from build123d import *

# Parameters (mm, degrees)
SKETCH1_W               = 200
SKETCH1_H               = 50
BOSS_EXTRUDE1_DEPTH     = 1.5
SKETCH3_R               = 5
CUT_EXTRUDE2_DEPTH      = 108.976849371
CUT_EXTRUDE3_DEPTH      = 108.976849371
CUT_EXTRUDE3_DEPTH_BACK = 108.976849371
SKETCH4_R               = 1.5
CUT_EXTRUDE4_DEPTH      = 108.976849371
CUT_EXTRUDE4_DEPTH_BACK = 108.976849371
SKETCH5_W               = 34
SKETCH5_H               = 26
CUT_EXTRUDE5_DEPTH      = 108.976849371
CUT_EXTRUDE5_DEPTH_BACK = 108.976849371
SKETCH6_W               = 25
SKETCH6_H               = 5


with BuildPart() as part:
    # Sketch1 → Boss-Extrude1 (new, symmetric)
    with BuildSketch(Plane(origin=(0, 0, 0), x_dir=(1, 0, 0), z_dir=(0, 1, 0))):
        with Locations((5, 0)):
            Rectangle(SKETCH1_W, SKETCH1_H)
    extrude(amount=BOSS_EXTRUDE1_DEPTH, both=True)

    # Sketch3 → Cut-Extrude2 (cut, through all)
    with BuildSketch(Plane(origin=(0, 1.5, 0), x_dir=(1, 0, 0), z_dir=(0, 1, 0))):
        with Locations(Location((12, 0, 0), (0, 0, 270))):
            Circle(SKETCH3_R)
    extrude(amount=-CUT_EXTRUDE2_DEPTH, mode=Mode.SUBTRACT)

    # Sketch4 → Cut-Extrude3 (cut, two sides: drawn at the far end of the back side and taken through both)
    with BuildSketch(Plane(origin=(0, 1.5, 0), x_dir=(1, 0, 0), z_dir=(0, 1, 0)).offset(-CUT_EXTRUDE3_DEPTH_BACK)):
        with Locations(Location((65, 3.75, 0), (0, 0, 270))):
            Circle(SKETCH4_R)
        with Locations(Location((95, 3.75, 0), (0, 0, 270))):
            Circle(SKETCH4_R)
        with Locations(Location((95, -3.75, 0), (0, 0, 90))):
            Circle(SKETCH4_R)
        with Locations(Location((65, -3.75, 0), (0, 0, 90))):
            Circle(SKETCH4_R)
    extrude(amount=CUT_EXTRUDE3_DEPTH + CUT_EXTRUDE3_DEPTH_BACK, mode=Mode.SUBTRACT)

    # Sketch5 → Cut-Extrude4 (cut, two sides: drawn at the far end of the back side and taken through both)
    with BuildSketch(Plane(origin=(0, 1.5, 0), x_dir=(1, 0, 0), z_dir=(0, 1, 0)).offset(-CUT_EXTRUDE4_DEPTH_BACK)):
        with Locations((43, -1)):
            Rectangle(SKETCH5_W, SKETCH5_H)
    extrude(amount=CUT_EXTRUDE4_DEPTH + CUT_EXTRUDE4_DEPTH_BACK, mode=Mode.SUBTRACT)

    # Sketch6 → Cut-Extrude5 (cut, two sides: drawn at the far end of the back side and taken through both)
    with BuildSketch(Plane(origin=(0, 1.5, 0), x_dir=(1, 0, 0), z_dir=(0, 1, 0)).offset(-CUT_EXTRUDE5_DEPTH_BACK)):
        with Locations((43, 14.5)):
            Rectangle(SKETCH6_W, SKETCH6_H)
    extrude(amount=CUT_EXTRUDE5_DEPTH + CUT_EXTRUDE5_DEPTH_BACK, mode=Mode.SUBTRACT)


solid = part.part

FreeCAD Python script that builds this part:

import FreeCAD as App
import Part
import Sketcher

doc = App.newDocument("Part")
body = doc.addObject("PartDesign::Body", "Body")

# Sketch on XZ plane
sketch1 = doc.addObject("Sketcher::SketchObject", "Sketch")
body.addObject(sketch1)
sketch1.AttachmentSupport = (doc.XZ_Plane, [""])
sketch1.MapMode = "FlatFace"
sketch1.addGeometry([
    Part.LineSegment(App.Vector(-95, -25, 0), App.Vector(-95, 25, 0)),
    Part.LineSegment(App.Vector(-95, 25, 0), App.Vector(105, 25, 0)),
    Part.LineSegment(App.Vector(105, 25, 0), App.Vector(105, -25, 0)),
    Part.LineSegment(App.Vector(105, -25, 0), App.Vector(-95, -25, 0)),
], False)
sketch1.addConstraint([
    Sketcher.Constraint("Coincident", 0, 2, 1, 1),
    Sketcher.Constraint("Coincident", 1, 2, 2, 1),
    Sketcher.Constraint("Coincident", 2, 2, 3, 1),
    Sketcher.Constraint("Coincident", 3, 2, 0, 1),
    Sketcher.Constraint("Vertical", 0),
    Sketcher.Constraint("Horizontal", 1),
    Sketcher.Constraint("Vertical", 2),
    Sketcher.Constraint("Horizontal", 3),
    Sketcher.Constraint("DistanceX", 1, 1, 1, 2, 200.0),
    Sketcher.Constraint("DistanceY", 0, 1, 0, 2, 50.0),
    Sketcher.Constraint("DistanceX", 0, 2, -1, 1, 95.0),
    Sketcher.Constraint("DistanceY", -1, 1, 0, 2, 25.0),
])
pad1 = doc.addObject("PartDesign::Pad", "Pad")
body.addObject(pad1)
pad1.Profile = sketch1
pad1.Length = 3
pad1.Midplane = True

# Sketch on XZ plane
sketch2 = doc.addObject("Sketcher::SketchObject", "Sketch001")
body.addObject(sketch2)
sketch2.AttachmentSupport = (doc.XZ_Plane, [""])
sketch2.MapMode = "FlatFace"
sketch2.AttachmentOffset = App.Placement(App.Vector(0, 0, -1.5), App.Rotation())
sketch2.addGeometry(Part.Circle(App.Vector(12, 0, 0), App.Vector(0, 0, 1), 5), False)
sketch2.addConstraint([
    Sketcher.Constraint("PointOnObject", 0, 3, -1),
    Sketcher.Constraint("Diameter", 0, 10.0),
    Sketcher.Constraint("DistanceX", -1, 1, 0, 3, 12.0),
])
pocket1 = doc.addObject("PartDesign::Pocket", "Pocket")
body.addObject(pocket1)
pocket1.Profile = sketch2
pocket1.Type = "ThroughAll"
pocket1.Reversed = True

# Sketch on XZ plane
sketch3 = doc.addObject("Sketcher::SketchObject", "Sketch002")
body.addObject(sketch3)
sketch3.AttachmentSupport = (doc.XZ_Plane, [""])
sketch3.MapMode = "FlatFace"
sketch3.AttachmentOffset = App.Placement(App.Vector(0, 0, -1.5), App.Rotation())
sketch3.addGeometry([
    Part.Circle(App.Vector(65, -3.75, 0), App.Vector(0, 0, 1), 1.5),
    Part.Circle(App.Vector(95, -3.75, 0), App.Vector(0, 0, 1), 1.5),
    Part.Circle(App.Vector(95, 3.75, 0), App.Vector(0, 0, 1), 1.5),
    Part.Circle(App.Vector(65, 3.75, 0), App.Vector(0, 0, 1), 1.5),
], False)
sketch3.addConstraint([
    Sketcher.Constraint("Equal", 0, 1),
    Sketcher.Constraint("Equal", 1, 2),
    Sketcher.Constraint("Equal", 2, 3),
    Sketcher.Constraint("Symmetric", 1, 3, 2, 3, -1),
    Sketcher.Constraint("Symmetric", 0, 3, 3, 3, -1),
    Sketcher.Constraint("Horizontal", 0, 3, 1, 3),
    Sketcher.Constraint("Diameter", 0, 3.0),
    Sketcher.Constraint("DistanceX", -1, 1, 0, 3, 65.0),
    Sketcher.Constraint("DistanceX", -1, 1, 1, 3, 95.0),
    Sketcher.Constraint("DistanceY", 1, 3, 2, 3, 7.5),
])
pocket2 = doc.addObject("PartDesign::Pocket", "Pocket001")
body.addObject(pocket2)
pocket2.Profile = sketch3
pocket2.Type = "ThroughAll"
pocket2.Midplane = True

# Sketch on XZ plane
sketch4 = doc.addObject("Sketcher::SketchObject", "Sketch003")
body.addObject(sketch4)
sketch4.AttachmentSupport = (doc.XZ_Plane, [""])
sketch4.MapMode = "FlatFace"
sketch4.AttachmentOffset = App.Placement(App.Vector(0, 0, -1.5), App.Rotation())
sketch4.addGeometry([
    Part.LineSegment(App.Vector(26, -12, 0), App.Vector(26, 14, 0)),
    Part.LineSegment(App.Vector(26, 14, 0), App.Vector(60, 14, 0)),
    Part.LineSegment(App.Vector(60, 14, 0), App.Vector(60, -12, 0)),
    Part.LineSegment(App.Vector(60, -12, 0), App.Vector(26, -12, 0)),
], False)
sketch4.addConstraint([
    Sketcher.Constraint("Coincident", 0, 2, 1, 1),
    Sketcher.Constraint("Coincident", 1, 2, 2, 1),
    Sketcher.Constraint("Coincident", 2, 2, 3, 1),
    Sketcher.Constraint("Coincident", 3, 2, 0, 1),
    Sketcher.Constraint("Vertical", 0),
    Sketcher.Constraint("Horizontal", 1),
    Sketcher.Constraint("Vertical", 2),
    Sketcher.Constraint("Horizontal", 3),
    Sketcher.Constraint("DistanceX", 1, 1, 1, 2, 34.0),
    Sketcher.Constraint("DistanceY", 0, 1, 0, 2, 26.0),
    Sketcher.Constraint("DistanceX", -1, 1, 0, 2, 26.0),
    Sketcher.Constraint("DistanceY", -1, 1, 0, 2, 14.0),
])
pocket3 = doc.addObject("PartDesign::Pocket", "Pocket002")
body.addObject(pocket3)
pocket3.Profile = sketch4
pocket3.Type = "ThroughAll"
pocket3.Midplane = True

# Sketch on XZ plane
sketch5 = doc.addObject("Sketcher::SketchObject", "Sketch004")
body.addObject(sketch5)
sketch5.AttachmentSupport = (doc.XZ_Plane, [""])
sketch5.MapMode = "FlatFace"
sketch5.AttachmentOffset = App.Placement(App.Vector(0, 0, -1.5), App.Rotation())
sketch5.addGeometry([
    Part.LineSegment(App.Vector(30.5, -17, 0), App.Vector(30.5, -12, 0)),
    Part.LineSegment(App.Vector(30.5, -12, 0), App.Vector(55.5, -12, 0)),
    Part.LineSegment(App.Vector(55.5, -12, 0), App.Vector(55.5, -17, 0)),
    Part.LineSegment(App.Vector(55.5, -17, 0), App.Vector(30.5, -17, 0)),
], False)
sketch5.addConstraint([
    Sketcher.Constraint("Coincident", 0, 2, 1, 1),
    Sketcher.Constraint("Coincident", 1, 2, 2, 1),
    Sketcher.Constraint("Coincident", 2, 2, 3, 1),
    Sketcher.Constraint("Coincident", 3, 2, 0, 1),
    Sketcher.Constraint("Vertical", 0),
    Sketcher.Constraint("Horizontal", 1),
    Sketcher.Constraint("Vertical", 2),
    Sketcher.Constraint("Horizontal", 3),
    Sketcher.Constraint("DistanceX", 1, 1, 1, 2, 25.0),
    Sketcher.Constraint("DistanceY", 0, 1, 0, 2, 5.0),
    Sketcher.Constraint("DistanceY", 0, 2, -1, 1, 12.0),
    Sketcher.Constraint("DistanceX", -1, 1, 0, 2, 30.5),
])
pocket4 = doc.addObject("PartDesign::Pocket", "Pocket003")
body.addObject(pocket4)
pocket4.Profile = sketch5
pocket4.Type = "ThroughAll"
pocket4.Midplane = True

doc.recompute()
